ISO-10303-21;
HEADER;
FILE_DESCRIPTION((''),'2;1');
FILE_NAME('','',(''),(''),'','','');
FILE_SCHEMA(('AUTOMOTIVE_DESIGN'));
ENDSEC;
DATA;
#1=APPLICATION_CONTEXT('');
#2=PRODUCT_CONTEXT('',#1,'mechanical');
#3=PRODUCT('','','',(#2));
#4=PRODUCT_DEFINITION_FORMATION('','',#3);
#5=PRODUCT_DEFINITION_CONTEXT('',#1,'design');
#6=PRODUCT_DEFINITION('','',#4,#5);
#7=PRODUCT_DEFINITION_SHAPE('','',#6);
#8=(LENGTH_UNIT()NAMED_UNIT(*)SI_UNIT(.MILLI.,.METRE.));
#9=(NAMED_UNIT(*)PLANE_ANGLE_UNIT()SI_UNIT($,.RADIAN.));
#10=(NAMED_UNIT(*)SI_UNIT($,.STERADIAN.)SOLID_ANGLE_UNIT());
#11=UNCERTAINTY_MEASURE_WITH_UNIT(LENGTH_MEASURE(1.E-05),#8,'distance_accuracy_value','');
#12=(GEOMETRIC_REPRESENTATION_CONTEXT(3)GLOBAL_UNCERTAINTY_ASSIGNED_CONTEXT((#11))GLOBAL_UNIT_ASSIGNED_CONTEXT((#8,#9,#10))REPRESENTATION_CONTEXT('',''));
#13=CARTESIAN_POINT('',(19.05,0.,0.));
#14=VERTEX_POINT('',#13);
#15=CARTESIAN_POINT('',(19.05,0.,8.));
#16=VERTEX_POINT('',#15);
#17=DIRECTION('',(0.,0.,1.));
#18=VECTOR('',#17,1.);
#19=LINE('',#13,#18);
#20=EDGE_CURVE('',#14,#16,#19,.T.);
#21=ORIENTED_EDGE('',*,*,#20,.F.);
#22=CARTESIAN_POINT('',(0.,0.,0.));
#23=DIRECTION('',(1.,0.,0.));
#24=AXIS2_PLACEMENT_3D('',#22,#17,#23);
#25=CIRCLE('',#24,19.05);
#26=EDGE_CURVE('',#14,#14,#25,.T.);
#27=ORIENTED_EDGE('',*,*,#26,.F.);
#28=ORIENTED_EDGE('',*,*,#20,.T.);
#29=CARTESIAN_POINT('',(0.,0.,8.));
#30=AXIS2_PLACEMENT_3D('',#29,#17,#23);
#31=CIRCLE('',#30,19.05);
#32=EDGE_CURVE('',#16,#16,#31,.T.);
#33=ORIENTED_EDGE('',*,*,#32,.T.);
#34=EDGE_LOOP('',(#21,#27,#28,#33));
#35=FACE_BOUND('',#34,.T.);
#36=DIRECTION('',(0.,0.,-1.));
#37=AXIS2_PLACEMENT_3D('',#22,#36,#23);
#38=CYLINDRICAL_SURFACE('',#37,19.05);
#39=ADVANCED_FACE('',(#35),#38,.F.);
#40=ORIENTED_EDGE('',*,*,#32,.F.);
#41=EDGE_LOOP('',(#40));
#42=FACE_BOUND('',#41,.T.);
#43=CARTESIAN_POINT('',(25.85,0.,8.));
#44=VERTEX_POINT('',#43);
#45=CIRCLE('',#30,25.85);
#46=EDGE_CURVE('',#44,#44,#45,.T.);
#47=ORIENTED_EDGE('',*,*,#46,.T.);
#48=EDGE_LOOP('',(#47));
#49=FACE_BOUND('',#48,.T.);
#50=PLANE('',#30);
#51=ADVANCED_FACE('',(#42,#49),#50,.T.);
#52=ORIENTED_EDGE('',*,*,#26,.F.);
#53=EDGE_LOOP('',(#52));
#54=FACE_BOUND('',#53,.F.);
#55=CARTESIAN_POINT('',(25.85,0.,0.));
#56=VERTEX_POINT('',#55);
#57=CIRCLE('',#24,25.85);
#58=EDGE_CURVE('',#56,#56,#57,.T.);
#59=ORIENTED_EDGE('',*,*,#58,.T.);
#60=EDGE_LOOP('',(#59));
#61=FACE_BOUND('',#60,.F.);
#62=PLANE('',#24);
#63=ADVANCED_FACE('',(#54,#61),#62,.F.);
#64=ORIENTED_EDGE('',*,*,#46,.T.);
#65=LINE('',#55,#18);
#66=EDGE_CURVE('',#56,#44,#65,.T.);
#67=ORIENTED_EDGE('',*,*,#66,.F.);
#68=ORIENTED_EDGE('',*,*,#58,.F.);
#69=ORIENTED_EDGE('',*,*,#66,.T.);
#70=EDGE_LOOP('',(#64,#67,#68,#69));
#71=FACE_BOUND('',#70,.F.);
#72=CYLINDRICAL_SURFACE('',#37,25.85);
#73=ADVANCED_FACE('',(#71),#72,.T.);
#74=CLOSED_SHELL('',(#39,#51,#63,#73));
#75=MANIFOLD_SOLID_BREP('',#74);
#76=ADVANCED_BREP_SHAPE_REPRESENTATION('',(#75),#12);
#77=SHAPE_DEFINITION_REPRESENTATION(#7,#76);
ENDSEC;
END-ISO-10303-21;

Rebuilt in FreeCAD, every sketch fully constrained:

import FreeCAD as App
import Part
import Sketcher
from FreeCAD import Vector

doc = App.newDocument("Part")
body = doc.addObject("PartDesign::Body", "Body")

# Sketch on XY plane
sketch1 = body.newObject("Sketcher::SketchObject", "Sketch")
sketch1.AttachmentSupport = (doc.getObject("XY_Plane"), [""])
sketch1.MapMode = "FlatFace"
sketch1.addGeometry([
    Part.Circle(Vector(0, 0, 0), Vector(0, 0, 1), 26),
    Part.Circle(Vector(0, 0, 0), Vector(0, 0, 1), 19),
], False)
sketch1.addConstraint([
    Sketcher.Constraint("Coincident", 0, 3, -1, 1),
    Sketcher.Constraint("Coincident", 1, 3, -1, 1),
    Sketcher.Constraint("Diameter", 0, 51.7),
    Sketcher.Constraint("Diameter", 1, 38.1),
])
pad1 = body.newObject("PartDesign::Pad", "Pad")
pad1.Profile = sketch1
pad1.Length = 8

doc.recompute()
